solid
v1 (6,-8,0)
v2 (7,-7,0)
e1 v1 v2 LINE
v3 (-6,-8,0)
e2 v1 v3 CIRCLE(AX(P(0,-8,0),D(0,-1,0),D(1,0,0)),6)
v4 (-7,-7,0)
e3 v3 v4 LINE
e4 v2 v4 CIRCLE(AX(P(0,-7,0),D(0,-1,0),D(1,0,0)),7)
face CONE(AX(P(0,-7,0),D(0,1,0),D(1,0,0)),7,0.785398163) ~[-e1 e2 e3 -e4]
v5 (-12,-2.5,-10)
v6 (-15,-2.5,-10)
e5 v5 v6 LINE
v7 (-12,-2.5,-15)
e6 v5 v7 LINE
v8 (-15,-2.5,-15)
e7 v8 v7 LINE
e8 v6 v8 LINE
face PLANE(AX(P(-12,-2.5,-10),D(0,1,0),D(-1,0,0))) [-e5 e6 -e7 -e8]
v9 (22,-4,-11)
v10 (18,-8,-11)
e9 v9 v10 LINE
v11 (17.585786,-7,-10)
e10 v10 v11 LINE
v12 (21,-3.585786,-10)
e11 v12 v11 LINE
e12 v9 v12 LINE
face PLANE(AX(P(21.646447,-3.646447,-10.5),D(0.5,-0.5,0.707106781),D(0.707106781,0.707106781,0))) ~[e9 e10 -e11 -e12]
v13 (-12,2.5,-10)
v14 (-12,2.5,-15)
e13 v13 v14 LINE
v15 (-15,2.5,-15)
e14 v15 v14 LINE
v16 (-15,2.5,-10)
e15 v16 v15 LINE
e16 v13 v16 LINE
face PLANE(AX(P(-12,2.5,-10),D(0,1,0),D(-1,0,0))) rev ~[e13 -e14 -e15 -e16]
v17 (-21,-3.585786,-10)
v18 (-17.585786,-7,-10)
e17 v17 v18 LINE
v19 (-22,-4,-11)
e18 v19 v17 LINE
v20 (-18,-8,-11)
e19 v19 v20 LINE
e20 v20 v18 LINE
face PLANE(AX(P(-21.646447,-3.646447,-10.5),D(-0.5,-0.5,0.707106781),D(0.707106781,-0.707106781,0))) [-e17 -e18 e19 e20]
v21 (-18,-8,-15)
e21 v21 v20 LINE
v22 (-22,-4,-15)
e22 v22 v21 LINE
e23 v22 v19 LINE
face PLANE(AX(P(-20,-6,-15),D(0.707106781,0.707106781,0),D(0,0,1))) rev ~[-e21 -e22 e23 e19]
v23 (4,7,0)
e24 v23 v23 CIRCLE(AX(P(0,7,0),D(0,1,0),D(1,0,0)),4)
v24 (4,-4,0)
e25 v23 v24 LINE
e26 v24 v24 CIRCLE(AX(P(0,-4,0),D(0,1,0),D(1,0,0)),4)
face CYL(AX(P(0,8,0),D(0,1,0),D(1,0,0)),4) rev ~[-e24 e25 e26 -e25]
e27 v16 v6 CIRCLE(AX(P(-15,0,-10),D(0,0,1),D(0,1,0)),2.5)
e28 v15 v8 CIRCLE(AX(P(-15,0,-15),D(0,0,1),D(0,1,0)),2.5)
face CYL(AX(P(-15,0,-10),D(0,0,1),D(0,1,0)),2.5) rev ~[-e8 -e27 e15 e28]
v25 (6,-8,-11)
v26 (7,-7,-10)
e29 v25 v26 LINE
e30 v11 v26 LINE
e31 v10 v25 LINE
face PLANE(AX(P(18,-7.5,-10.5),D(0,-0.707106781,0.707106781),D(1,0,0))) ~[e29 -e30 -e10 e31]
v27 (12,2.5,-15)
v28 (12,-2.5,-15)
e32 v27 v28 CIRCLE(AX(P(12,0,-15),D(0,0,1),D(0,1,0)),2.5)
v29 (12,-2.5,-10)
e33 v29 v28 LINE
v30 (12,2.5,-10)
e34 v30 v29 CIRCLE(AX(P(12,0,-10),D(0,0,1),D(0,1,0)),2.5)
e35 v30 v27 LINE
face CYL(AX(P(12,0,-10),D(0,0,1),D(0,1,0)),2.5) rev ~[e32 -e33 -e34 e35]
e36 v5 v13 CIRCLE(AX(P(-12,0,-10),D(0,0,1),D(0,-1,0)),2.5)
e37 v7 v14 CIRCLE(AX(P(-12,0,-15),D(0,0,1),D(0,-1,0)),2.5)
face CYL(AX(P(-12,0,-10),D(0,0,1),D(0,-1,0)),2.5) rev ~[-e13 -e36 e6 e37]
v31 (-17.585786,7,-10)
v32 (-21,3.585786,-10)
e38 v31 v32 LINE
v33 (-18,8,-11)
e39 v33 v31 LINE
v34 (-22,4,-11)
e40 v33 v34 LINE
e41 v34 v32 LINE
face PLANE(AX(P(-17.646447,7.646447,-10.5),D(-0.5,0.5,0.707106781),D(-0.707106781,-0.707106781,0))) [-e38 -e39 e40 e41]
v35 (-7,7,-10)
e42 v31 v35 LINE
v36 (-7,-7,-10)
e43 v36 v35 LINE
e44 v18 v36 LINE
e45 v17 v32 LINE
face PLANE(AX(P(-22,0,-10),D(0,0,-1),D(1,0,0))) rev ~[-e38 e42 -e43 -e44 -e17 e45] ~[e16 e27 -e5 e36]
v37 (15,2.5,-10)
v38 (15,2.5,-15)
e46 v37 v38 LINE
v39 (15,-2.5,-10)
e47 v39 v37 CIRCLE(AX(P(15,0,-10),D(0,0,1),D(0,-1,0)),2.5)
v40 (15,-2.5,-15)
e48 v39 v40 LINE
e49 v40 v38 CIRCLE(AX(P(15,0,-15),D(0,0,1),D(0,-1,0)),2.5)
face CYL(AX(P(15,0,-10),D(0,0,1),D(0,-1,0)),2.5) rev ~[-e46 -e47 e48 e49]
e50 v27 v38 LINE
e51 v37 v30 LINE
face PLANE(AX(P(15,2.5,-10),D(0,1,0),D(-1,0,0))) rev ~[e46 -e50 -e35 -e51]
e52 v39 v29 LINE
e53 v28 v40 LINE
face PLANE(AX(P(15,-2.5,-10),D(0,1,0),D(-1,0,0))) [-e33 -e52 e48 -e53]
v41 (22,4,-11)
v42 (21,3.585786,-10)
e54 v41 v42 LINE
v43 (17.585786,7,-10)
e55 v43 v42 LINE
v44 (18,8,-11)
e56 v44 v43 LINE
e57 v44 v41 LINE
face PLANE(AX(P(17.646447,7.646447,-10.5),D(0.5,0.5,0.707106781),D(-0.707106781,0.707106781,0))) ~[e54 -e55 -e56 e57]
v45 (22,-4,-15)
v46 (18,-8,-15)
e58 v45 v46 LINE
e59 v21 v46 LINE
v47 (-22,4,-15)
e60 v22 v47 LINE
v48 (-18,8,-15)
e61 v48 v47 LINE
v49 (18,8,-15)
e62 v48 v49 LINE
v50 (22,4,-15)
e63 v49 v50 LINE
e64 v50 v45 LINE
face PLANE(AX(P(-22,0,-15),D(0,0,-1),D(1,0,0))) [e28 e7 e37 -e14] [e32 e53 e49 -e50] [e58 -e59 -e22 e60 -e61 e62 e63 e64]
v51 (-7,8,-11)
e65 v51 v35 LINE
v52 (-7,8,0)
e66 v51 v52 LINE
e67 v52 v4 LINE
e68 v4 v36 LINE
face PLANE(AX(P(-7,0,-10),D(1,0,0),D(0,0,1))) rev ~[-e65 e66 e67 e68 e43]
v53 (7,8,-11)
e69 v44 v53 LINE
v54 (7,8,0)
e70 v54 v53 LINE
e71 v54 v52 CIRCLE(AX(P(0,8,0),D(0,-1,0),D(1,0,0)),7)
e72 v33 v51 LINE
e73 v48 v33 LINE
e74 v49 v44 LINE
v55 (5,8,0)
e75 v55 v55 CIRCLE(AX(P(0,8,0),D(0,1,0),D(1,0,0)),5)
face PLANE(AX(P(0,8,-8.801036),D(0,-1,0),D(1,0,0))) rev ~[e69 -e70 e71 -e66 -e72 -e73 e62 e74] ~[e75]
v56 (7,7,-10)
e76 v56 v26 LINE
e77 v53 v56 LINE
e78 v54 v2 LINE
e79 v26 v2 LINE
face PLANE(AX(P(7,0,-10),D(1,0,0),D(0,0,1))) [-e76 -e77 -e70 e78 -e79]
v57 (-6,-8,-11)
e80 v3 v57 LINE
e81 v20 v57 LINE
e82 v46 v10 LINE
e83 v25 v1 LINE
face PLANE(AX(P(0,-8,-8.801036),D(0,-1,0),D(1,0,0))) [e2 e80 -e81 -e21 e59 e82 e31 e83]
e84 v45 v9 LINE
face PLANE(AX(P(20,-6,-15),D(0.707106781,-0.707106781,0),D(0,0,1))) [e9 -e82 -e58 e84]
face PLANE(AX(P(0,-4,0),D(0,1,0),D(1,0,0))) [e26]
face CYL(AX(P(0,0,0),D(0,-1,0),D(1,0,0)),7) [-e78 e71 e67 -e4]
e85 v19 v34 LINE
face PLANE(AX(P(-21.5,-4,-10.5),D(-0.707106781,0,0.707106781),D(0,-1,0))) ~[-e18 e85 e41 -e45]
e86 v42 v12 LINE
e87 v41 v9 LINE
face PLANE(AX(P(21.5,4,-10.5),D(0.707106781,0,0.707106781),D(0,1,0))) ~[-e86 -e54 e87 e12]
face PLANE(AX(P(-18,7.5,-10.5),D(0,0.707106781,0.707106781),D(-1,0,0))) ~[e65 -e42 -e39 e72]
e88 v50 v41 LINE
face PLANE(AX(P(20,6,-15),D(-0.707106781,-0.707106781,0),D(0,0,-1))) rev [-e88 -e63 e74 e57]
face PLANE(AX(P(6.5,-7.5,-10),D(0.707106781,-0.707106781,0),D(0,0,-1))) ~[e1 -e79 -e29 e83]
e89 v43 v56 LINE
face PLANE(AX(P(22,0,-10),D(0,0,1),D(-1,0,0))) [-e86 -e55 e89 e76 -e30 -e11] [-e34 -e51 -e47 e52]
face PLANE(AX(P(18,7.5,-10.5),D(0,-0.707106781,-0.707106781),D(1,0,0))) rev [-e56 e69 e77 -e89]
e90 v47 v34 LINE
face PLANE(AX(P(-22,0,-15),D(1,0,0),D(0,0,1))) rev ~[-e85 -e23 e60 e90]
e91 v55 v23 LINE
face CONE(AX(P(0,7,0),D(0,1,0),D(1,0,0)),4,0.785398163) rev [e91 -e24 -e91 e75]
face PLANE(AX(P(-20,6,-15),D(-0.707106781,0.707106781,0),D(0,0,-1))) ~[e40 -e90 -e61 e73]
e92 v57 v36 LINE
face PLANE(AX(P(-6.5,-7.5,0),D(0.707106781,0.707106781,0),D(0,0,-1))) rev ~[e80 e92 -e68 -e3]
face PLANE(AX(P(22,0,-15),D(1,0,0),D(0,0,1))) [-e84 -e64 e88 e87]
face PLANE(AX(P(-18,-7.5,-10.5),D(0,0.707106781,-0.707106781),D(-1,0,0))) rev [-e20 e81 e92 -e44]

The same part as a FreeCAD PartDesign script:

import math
import FreeCAD as App
import Part
import Sketcher
from FreeCAD import Vector


def edges_at(feature, points):
    """Names of the edges that pass closest to the given points."""
    edges = feature.Shape.Edges
    near = lambda p: min(range(len(edges)), key=lambda i: edges[i].distToShape(Part.Vertex(*p))[0])
    return sorted({f"Edge{near(p) + 1}" for p in points})

doc = App.newDocument("Part")
body = doc.addObject("PartDesign::Body", "Body")

# Sketch on XZ plane
sketch1 = body.newObject("Sketcher::SketchObject", "Sketch")
sketch1.AttachmentSupport = (doc.getObject("XZ_Plane"), [""])
sketch1.MapMode = "FlatFace"
sketch1.addGeometry(Part.LineSegment(Vector(-22, -15, 0), Vector(22, -15, 0)), False)
sketch1.addGeometry(Part.LineSegment(Vector(22, -15, 0), Vector(22, -10, 0)), False)
sketch1.addGeometry(Part.LineSegment(Vector(22, -10, 0), Vector(7, -10, 0)), False)
sketch1.addGeometry(Part.LineSegment(Vector(7, -10, 0), Vector(7, 0, 0)), False)
sketch1.addGeometry(Part.ArcOfCircle(Part.Circle(Vector(0, 0, 0), Vector(0, 0, 1), 7), math.radians(0), math.radians(180)), False)
sketch1.addGeometry(Part.LineSegment(Vector(-7, 0, 0), Vector(-7, -10, 0)), False)
sketch1.addGeometry(Part.LineSegment(Vector(-7, -10, 0), Vector(-22, -10, 0)), False)
sketch1.addGeometry(Part.LineSegment(Vector(-22, -10, 0), Vector(-22, -15, 0)), False)
sketch1.addConstraint(Sketcher.Constraint("Coincident", 0, 2, 1, 1))
sketch1.addConstraint(Sketcher.Constraint("Coincident", 1, 2, 2, 1))
sketch1.addConstraint(Sketcher.Constraint("Coincident", 2, 2, 3, 1))
sketch1.addConstraint(Sketcher.Constraint("Tangent", 3, 2, 4, 1))
sketch1.addConstraint(Sketcher.Constraint("Tangent", 4, 2, 5, 1))
sketch1.addConstraint(Sketcher.Constraint("Coincident", 5, 2, 6, 1))
sketch1.addConstraint(Sketcher.Constraint("Coincident", 6, 2, 7, 1))
sketch1.addConstraint(Sketcher.Constraint("Coincident", 7, 2, 0, 1))
sketch1.addConstraint(Sketcher.Constraint("Horizontal", 0))
sketch1.addConstraint(Sketcher.Constraint("Vertical", 1))
sketch1.addConstraint(Sketcher.Constraint("Horizontal", 2))
sketch1.addConstraint(Sketcher.Constraint("Vertical", 3))
sketch1.addConstraint(Sketcher.Constraint("Vertical", 5))
sketch1.addConstraint(Sketcher.Constraint("Horizontal", 6))
sketch1.addConstraint(Sketcher.Constraint("Vertical", 7))
sketch1.addConstraint(Sketcher.Constraint("Coincident", 4, 3, -1, 1))
sketch1.addConstraint(Sketcher.Constraint("Symmetric", 1, 2, 6, 2, -2))
sketch1.addConstraint(Sketcher.Constraint("Radius", 4, 7.0))
sketch1.addConstraint(Sketcher.Constraint("DistanceX", 0, 1, 0, 2, 44.0))
sketch1.addConstraint(Sketcher.Constraint("DistanceY", 1, 1, 1, 2, 5.0))
sketch1.addConstraint(Sketcher.Constraint("DistanceY", 3, 1, 3, 2, 10.0))
pad1 = body.newObject("PartDesign::Pad", "Pad")
pad1.Profile = sketch1
pad1.Length = 16
pad1.Midplane = True

# Sketch on XY plane
sketch2 = body.newObject("Sketcher::SketchObject", "Sketch001")
sketch2.AttachmentSupport = (doc.getObject("XY_Plane"), [""])
sketch2.MapMode = "FlatFace"
sketch2.AttachmentOffset = App.Placement(Vector(0, 0, -10), App.Rotation())
sketch2.addGeometry(Part.ArcOfCircle(Part.Circle(Vector(15, 0, 0), Vector(0, 0, 1), 2.5), math.radians(-90), math.radians(90)), False)
sketch2.addGeometry(Part.LineSegment(Vector(15, 2.5, 0), Vector(12, 2.5, 0)), False)
sketch2.addGeometry(Part.ArcOfCircle(Part.Circle(Vector(12, 0, 0), Vector(0, 0, 1), 2.5), math.radians(90), math.radians(270)), False)
sketch2.addGeometry(Part.LineSegment(Vector(12, -2.5, 0), Vector(15, -2.5, 0)), False)
sketch2.addGeometry(Part.ArcOfCircle(Part.Circle(Vector(-12, 0, 0), Vector(0, 0, 1), 2.5), math.radians(-90), math.radians(90)), False)
sketch2.addGeometry(Part.LineSegment(Vector(-12, 2.5, 0), Vector(-15, 2.5, 0)), False)
sketch2.addGeometry(Part.ArcOfCircle(Part.Circle(Vector(-15, 0, 0), Vector(0, 0, 1), 2.5), math.radians(90), math.radians(270)), False)
sketch2.addGeometry(Part.LineSegment(Vector(-15, -2.5, 0), Vector(-12, -2.5, 0)), False)
sketch2.addConstraint(Sketcher.Constraint("Tangent", 0, 2, 1, 1))
sketch2.addConstraint(Sketcher.Constraint("Tangent", 1, 2, 2, 1))
sketch2.addConstraint(Sketcher.Constraint("Tangent", 2, 2, 3, 1))
sketch2.addConstraint(Sketcher.Constraint("Tangent", 3, 2, 0, 1))
sketch2.addConstraint(Sketcher.Constraint("Tangent", 4, 2, 5, 1))
sketch2.addConstraint(Sketcher.Constraint("Tangent", 5, 2, 6, 1))
sketch2.addConstraint(Sketcher.Constraint("Tangent", 6, 2, 7, 1))
sketch2.addConstraint(Sketcher.Constraint("Tangent", 7, 2, 4, 1))
sketch2.addConstraint(Sketcher.Constraint("Horizontal", 1))
sketch2.addConstraint(Sketcher.Constraint("Horizontal", 3))
sketch2.addConstraint(Sketcher.Constraint("Horizontal", 5))
sketch2.addConstraint(Sketcher.Constraint("Horizontal", 7))
sketch2.addConstraint(Sketcher.Constraint("Equal", 2, 4))
sketch2.addConstraint(Sketcher.Constraint("Symmetric", 2, 3, 4, 3, -1, 1))
sketch2.addConstraint(Sketcher.Constraint("Symmetric", 0, 3, 6, 3, -2))
sketch2.addConstraint(Sketcher.Constraint("Radius", 0, 2.5))
sketch2.addConstraint(Sketcher.Constraint("DistanceX", 1, 2, 1, 1, 3.0))
sketch2.addConstraint(Sketcher.Constraint("DistanceX", -1, 1, 0, 3, 15.0))
pocket1 = body.newObject("PartDesign::Pocket", "Pocket")
pocket1.Profile = sketch2
pocket1.Type = "ThroughAll"

# Sketch on XZ plane
sketch3 = body.newObject("Sketcher::SketchObject", "Sketch002")
sketch3.AttachmentSupport = (doc.getObject("XZ_Plane"), [""])
sketch3.MapMode = "FlatFace"
sketch3.AttachmentOffset = App.Placement(Vector(0, 0, -8), App.Rotation())
sketch3.addGeometry(Part.Circle(Vector(0, 0, 0), Vector(0, 0, 1), 4), False)
sketch3.addConstraint(Sketcher.Constraint("Coincident", 0, 3, -1, 1))
sketch3.addConstraint(Sketcher.Constraint("Diameter", 0, 8.0))
pocket2 = body.newObject("PartDesign::Pocket", "Pocket001")
pocket2.Profile = sketch3
pocket2.Length = 12
pocket2.Reversed = True
doc.recompute()

chamfer = body.newObject("PartDesign::Chamfer", "Chamfer")
chamfer.Base = (pocket2, edges_at(pocket2, [
    (22, 8, -12.5),
    (-22, 8, -12.5),
    (-22, -8, -12.5),
    (22, -8, -12.5),
]))
chamfer.Size = 4
doc.recompute()

chamfer2 = body.newObject("PartDesign::Chamfer", "Chamfer001")
chamfer2.Base = (chamfer, edges_at(chamfer, [
    (-12.5, 8, -10),
    (-20, 6, -10),
    (-22, 0, -10),
    (-12.5, -8, -10),
    (12.5, -8, -10),
    (20, -6, -10),
    (22, 0, -10),
    (20, 6, -10),
    (12.5, 8, -10),
    (-20, -6, -10),
    (0, -8, 7),
]))
chamfer2.Size = 1
doc.recompute()

chamfer3 = body.newObject("PartDesign::Chamfer", "Chamfer002")
chamfer3.Base = (chamfer2, edges_at(chamfer2, [(-4, 8, 0)]))
chamfer3.Size = 1

doc.recompute()
